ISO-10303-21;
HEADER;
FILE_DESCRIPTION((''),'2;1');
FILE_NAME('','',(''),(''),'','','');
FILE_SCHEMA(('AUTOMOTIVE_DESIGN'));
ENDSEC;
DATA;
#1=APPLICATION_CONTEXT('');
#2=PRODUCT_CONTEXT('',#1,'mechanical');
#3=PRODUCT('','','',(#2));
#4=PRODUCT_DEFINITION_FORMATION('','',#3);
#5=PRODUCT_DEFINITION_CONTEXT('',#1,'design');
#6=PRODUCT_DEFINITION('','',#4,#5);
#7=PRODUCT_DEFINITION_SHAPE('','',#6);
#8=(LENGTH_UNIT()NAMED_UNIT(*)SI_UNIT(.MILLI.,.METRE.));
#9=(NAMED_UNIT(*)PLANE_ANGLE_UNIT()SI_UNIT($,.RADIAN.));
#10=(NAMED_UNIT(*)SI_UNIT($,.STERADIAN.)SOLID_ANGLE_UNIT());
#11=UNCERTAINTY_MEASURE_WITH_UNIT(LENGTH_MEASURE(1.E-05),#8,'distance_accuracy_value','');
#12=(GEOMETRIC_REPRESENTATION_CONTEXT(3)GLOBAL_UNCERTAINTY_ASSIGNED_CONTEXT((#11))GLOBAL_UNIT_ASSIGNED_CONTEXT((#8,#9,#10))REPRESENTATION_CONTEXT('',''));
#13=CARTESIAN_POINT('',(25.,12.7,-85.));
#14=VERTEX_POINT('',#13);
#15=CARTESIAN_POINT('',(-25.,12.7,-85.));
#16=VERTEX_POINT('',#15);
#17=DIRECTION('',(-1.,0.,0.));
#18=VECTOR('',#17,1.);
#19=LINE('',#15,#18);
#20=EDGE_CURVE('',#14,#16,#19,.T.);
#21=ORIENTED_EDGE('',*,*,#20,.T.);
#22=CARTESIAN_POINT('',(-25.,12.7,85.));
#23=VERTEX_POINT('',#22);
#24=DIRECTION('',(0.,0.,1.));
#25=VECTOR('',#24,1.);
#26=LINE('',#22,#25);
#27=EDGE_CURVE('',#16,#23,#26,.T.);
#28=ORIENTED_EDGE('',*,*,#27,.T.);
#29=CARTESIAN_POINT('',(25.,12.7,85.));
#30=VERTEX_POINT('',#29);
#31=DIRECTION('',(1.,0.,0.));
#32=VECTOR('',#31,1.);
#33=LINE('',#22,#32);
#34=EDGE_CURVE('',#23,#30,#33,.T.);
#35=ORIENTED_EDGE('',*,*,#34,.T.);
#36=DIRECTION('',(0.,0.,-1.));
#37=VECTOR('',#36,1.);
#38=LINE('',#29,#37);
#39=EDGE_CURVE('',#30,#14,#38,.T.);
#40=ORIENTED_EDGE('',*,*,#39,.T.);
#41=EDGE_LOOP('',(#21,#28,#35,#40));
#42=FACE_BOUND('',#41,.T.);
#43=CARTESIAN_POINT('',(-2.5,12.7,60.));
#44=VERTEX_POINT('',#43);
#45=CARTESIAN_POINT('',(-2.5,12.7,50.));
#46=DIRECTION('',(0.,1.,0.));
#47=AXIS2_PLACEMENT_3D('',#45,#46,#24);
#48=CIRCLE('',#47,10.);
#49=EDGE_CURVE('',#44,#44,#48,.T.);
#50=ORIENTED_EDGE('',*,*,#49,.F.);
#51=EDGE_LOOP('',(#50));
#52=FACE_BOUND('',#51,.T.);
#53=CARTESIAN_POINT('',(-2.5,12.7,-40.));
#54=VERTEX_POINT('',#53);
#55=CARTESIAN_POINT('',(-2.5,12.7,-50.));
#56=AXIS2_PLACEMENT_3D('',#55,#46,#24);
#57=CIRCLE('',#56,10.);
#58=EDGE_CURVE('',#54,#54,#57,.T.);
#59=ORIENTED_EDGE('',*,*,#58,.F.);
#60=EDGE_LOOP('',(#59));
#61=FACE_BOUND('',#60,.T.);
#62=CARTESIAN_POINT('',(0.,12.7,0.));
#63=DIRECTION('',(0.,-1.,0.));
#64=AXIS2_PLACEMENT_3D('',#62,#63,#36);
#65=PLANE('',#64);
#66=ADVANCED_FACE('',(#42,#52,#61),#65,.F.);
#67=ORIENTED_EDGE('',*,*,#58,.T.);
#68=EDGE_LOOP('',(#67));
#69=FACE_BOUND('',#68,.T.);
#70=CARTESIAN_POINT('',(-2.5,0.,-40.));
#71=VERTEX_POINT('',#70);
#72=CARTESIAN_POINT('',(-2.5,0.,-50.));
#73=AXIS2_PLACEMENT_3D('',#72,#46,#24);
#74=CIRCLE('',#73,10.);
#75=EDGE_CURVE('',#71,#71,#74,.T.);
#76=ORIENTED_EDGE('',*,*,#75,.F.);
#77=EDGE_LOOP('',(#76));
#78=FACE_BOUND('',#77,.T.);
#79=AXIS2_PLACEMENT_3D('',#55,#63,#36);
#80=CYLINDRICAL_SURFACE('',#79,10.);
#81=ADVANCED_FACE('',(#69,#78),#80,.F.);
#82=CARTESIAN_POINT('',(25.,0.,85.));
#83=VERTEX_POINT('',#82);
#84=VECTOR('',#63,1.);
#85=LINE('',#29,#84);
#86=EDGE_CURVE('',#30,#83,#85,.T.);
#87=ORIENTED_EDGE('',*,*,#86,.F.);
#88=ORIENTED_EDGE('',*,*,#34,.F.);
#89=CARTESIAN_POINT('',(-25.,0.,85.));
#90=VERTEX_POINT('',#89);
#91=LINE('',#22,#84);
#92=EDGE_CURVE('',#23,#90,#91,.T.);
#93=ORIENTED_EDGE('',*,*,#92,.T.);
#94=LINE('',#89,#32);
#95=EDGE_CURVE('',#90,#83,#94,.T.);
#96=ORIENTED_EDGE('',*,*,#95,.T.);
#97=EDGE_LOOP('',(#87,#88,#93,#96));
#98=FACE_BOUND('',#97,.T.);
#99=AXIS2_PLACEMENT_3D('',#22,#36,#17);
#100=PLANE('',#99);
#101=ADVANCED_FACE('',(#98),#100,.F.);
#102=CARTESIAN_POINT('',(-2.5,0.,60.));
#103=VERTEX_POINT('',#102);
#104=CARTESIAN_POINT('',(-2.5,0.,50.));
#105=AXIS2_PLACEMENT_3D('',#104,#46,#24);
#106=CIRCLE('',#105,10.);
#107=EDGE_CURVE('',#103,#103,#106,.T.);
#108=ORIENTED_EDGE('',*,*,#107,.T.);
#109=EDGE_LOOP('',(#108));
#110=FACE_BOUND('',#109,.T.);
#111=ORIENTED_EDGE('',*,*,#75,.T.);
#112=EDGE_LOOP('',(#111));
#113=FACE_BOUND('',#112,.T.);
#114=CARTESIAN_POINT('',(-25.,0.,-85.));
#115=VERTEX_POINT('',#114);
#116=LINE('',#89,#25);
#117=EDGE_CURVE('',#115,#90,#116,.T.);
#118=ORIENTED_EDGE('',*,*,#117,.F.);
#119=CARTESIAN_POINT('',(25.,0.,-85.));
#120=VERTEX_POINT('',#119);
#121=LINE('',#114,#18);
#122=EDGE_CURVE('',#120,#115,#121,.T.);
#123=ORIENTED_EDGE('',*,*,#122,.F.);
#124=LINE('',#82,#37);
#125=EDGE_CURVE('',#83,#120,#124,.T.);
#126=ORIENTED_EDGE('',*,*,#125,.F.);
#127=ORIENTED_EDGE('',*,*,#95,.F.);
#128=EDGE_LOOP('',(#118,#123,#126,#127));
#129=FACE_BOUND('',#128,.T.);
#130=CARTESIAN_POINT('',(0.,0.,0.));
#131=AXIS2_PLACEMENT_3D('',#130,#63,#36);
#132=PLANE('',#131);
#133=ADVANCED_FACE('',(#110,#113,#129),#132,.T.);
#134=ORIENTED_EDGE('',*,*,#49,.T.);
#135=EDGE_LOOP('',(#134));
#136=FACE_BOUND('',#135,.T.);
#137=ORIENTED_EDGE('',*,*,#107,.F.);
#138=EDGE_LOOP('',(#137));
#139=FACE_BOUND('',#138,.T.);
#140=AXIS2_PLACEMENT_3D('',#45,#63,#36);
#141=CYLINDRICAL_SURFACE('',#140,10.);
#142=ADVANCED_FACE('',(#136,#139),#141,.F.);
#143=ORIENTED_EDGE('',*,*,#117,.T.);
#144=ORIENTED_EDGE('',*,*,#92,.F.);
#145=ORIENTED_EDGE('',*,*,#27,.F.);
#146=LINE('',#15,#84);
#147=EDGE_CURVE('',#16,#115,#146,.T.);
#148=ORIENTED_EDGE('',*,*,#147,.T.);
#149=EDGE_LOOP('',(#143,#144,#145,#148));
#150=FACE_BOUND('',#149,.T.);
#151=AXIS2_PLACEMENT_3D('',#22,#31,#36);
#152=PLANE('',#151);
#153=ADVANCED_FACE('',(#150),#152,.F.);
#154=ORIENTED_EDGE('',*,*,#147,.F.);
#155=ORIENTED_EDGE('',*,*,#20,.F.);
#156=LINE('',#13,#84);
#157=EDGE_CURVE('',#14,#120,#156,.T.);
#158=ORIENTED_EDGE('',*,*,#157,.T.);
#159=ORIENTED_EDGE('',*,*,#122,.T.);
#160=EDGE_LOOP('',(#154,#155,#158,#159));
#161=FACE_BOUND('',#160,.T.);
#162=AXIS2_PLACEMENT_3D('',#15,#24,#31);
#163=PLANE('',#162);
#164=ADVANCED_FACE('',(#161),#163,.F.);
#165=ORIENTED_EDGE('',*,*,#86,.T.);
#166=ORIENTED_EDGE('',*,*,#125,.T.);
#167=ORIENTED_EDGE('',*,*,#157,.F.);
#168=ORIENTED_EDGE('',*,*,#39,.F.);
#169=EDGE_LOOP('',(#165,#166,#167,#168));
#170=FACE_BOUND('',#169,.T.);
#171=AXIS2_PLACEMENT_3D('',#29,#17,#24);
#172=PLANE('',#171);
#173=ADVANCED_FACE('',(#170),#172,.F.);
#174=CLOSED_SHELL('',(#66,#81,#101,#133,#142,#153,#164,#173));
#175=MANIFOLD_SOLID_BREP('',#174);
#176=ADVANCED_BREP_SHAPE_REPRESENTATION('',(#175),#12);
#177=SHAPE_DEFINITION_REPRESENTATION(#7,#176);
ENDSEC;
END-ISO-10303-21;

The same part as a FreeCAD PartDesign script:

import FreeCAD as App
import Part
import Sketcher

V = App.Vector
Q = App.Units.Quantity

doc = App.newDocument("Part")
body = doc.addObject("PartDesign::Body", "Body")

# Sketch on XZ plane
sketch1 = body.newObject("Sketcher::SketchObject", "Sketch")
sketch1.AttachmentSupport = (doc.getObject("XZ_Plane"), [""])
sketch1.MapMode = "FlatFace"
sketch1.addGeometry([
    Part.LineSegment(V(-25, -85, 0), V(-25, 85, 0)),  # 0
    Part.LineSegment(V(-25, 85, 0), V(25, 85, 0)),  # 1
    Part.LineSegment(V(25, 85, 0), V(25, -85, 0)),  # 2
    Part.LineSegment(V(25, -85, 0), V(-25, -85, 0)),  # 3
    Part.Circle(V(-2, 50, 0), V(0, 0, 1), 10),  # 4
    Part.Circle(V(-2, -50, 0), V(0, 0, 1), 10),  # 5
], False)
sketch1.addConstraint([
    Sketcher.Constraint("Coincident", 0, 2, 1, 1),
    Sketcher.Constraint("Coincident", 1, 2, 2, 1),
    Sketcher.Constraint("Coincident", 2, 2, 3, 1),
    Sketcher.Constraint("Coincident", 3, 2, 0, 1),
    Sketcher.Constraint("Vertical", 0),
    Sketcher.Constraint("Horizontal", 1),
    Sketcher.Constraint("Vertical", 2),
    Sketcher.Constraint("Horizontal", 3),
    Sketcher.Constraint("Equal", 4, 5),
    Sketcher.Constraint("Symmetric", 0, 2, 2, 2, -1, 1),
    Sketcher.Constraint("Symmetric", 4, 3, 5, 3, -1),
    Sketcher.Constraint("Diameter", 4, Q("20 mm")),
    Sketcher.Constraint("DistanceX", 1, 1, 1, 2, Q("50 mm")),
    Sketcher.Constraint("DistanceY", 0, 1, 0, 2, Q("170 mm")),
    Sketcher.Constraint("DistanceY", -1, 1, 4, 3, Q("50 mm")),
    Sketcher.Constraint("DistanceX", 4, 3, -1, 1, Q("2.5 mm")),
])
pad1 = body.newObject("PartDesign::Pad", "Pad")
pad1.Profile = sketch1
pad1.Length = 12.7
pad1.Reversed = True

doc.recompute()
